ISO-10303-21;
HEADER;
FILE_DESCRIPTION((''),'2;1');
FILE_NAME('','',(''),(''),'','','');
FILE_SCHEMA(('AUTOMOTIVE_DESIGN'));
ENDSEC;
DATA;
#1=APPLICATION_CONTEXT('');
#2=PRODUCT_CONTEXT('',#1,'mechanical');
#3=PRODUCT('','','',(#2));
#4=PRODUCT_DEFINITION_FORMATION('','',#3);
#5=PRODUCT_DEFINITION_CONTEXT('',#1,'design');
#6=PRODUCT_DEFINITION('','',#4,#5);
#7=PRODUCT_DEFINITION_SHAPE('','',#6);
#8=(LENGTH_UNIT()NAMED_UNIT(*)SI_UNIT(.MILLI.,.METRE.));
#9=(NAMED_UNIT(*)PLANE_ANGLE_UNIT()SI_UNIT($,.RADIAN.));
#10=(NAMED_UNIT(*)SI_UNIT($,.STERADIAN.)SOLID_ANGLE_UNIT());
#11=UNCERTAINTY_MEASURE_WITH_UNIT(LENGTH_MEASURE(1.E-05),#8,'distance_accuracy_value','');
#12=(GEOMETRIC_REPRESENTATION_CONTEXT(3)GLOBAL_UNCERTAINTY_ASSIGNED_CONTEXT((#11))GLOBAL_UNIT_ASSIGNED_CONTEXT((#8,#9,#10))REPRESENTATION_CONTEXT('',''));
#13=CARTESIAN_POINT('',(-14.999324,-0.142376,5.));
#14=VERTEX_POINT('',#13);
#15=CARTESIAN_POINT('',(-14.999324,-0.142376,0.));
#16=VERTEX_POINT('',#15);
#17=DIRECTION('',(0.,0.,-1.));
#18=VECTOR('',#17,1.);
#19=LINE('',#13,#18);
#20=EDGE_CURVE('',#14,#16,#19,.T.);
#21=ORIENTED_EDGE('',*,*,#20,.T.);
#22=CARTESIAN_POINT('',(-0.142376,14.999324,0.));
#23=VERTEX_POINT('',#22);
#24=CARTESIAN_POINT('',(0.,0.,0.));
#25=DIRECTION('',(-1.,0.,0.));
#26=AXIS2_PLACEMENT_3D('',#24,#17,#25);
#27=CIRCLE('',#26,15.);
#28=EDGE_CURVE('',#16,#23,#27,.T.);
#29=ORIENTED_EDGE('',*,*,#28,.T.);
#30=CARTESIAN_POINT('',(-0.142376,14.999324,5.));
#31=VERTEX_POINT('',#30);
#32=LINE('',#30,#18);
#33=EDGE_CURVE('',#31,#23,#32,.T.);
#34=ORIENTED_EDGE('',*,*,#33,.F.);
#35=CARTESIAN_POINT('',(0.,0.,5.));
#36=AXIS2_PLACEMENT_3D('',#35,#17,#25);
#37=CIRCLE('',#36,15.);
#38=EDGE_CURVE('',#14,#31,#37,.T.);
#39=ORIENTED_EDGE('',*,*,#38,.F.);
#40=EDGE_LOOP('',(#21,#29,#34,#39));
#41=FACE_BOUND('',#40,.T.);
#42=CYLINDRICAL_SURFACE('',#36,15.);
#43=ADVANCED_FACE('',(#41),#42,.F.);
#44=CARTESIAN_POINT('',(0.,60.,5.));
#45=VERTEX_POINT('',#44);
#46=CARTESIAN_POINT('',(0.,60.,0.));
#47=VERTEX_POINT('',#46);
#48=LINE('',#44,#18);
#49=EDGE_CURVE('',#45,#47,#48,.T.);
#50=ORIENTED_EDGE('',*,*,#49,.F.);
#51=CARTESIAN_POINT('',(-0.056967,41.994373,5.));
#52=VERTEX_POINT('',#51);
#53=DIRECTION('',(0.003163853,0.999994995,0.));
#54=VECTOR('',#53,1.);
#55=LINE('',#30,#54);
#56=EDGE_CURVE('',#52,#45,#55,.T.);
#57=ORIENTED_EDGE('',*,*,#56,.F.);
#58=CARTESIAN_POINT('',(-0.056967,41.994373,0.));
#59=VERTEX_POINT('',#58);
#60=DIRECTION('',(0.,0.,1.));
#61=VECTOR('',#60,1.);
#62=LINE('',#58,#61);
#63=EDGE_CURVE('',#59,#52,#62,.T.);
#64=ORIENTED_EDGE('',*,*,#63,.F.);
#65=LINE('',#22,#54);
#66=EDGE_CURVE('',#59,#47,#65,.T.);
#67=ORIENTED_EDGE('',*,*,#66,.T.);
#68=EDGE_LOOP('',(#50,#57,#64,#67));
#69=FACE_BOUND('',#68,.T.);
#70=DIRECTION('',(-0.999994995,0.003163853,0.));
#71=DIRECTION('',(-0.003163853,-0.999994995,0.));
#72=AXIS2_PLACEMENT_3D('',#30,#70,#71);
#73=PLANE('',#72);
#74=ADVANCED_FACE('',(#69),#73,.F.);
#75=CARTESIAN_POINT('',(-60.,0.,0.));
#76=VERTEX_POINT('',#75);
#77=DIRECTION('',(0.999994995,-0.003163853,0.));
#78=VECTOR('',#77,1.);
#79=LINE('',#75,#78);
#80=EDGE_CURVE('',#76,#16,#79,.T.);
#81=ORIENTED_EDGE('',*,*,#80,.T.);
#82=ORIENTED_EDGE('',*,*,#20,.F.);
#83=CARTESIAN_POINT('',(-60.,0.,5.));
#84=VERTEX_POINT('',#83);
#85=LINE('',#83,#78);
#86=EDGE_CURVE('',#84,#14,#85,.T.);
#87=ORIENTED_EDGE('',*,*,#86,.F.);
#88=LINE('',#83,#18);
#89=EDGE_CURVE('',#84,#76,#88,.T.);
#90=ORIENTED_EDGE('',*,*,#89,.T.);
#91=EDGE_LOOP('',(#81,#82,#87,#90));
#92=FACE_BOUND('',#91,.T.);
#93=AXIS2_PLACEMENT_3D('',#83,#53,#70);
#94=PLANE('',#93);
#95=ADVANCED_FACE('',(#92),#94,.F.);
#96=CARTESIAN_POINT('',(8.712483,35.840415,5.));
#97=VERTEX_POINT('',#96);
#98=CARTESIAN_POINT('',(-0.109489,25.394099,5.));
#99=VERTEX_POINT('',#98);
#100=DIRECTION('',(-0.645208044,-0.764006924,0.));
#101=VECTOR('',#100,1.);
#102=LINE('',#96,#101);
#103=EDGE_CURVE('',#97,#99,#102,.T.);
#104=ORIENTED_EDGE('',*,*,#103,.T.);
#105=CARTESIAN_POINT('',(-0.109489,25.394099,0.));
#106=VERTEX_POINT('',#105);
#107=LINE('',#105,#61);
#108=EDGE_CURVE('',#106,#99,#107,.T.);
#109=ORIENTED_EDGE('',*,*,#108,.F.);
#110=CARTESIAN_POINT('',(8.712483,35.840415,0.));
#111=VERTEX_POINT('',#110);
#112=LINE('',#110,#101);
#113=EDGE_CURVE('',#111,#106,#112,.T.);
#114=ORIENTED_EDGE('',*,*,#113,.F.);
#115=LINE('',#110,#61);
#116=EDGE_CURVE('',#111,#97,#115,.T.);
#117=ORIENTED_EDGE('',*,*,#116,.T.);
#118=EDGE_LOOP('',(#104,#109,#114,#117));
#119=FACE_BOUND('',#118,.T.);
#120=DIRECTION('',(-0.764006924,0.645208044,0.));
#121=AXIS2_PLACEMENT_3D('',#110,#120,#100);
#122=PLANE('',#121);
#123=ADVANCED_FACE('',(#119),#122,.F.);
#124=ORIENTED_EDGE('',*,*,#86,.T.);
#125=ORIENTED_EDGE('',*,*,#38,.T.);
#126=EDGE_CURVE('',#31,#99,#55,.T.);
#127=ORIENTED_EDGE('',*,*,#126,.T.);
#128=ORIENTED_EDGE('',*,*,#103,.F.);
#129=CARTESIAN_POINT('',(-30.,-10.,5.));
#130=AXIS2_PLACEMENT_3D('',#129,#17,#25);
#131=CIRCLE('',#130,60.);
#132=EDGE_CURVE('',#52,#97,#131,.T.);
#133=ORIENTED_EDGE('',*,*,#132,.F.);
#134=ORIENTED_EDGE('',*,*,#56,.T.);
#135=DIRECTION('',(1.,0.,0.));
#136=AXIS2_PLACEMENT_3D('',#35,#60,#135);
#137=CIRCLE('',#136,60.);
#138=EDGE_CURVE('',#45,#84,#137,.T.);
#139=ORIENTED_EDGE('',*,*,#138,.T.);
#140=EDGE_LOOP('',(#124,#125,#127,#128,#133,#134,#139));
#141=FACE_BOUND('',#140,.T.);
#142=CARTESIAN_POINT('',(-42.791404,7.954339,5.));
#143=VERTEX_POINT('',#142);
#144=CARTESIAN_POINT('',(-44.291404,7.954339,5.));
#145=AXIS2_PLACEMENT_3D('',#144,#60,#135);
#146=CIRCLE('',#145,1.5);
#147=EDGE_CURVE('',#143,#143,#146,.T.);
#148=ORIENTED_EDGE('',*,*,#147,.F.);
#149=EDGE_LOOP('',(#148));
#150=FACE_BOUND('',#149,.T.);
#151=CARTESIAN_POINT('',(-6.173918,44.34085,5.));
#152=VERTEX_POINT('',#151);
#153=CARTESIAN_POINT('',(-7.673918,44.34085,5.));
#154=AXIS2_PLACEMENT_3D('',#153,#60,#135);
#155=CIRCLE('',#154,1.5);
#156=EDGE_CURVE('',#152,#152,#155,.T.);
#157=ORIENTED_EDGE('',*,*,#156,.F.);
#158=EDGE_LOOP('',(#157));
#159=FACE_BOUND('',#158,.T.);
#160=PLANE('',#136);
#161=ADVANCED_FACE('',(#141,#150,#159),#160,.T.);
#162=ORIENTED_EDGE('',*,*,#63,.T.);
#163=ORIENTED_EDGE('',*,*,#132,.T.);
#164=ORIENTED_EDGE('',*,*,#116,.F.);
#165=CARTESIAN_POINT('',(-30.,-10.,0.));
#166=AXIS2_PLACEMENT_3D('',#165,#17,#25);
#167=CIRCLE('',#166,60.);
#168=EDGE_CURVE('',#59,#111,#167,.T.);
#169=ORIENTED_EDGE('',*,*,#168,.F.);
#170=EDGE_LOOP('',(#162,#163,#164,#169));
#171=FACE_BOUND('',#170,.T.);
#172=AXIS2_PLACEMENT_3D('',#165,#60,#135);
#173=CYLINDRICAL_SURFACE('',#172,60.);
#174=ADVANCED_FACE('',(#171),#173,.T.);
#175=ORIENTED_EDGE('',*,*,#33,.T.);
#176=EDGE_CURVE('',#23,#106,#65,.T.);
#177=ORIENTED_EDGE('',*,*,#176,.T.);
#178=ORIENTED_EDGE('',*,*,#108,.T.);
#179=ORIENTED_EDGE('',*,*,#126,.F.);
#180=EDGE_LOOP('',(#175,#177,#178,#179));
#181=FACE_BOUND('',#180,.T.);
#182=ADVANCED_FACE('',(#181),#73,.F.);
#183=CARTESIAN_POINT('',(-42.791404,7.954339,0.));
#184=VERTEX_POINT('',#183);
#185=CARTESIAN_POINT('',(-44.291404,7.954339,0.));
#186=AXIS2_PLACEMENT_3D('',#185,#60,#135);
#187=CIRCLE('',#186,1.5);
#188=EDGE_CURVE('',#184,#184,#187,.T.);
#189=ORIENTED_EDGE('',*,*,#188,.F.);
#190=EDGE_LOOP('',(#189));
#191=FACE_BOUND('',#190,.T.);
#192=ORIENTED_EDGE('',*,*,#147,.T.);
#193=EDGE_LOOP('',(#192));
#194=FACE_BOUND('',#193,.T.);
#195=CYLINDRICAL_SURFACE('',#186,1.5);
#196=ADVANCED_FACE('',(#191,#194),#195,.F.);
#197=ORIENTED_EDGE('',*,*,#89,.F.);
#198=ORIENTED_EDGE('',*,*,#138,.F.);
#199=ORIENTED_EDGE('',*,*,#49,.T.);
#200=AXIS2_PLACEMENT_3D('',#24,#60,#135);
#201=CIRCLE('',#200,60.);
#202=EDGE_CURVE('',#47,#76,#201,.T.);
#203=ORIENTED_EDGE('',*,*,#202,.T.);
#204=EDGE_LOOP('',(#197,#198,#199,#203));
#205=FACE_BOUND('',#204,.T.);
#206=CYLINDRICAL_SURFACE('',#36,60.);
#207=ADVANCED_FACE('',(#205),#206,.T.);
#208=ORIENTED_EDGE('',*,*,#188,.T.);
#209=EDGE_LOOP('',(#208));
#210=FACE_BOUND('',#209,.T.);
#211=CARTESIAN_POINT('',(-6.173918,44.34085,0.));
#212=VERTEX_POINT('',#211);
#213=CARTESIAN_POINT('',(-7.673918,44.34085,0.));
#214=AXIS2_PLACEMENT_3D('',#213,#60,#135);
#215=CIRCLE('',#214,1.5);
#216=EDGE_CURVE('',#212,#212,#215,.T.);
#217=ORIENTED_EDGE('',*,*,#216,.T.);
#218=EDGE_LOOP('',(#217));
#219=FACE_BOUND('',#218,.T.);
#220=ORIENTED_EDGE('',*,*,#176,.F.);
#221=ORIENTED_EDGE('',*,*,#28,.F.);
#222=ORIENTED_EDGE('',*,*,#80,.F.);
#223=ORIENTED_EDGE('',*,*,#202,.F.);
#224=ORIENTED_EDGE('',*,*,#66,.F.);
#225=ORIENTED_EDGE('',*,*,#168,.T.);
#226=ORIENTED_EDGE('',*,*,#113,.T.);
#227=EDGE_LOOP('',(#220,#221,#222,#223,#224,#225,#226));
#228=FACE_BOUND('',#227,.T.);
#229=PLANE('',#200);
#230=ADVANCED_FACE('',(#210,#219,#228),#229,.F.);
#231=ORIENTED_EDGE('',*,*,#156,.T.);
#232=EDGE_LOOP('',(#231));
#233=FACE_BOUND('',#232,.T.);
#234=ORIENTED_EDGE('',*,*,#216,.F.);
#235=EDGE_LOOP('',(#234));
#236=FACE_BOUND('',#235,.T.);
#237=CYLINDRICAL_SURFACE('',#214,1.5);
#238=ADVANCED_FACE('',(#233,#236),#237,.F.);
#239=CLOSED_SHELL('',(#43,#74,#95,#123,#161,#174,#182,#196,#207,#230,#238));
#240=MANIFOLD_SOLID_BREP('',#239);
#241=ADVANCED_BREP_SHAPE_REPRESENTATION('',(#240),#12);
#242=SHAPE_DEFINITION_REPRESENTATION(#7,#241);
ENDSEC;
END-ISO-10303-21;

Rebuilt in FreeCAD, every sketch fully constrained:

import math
import FreeCAD as App
import Part
import Sketcher
from FreeCAD import Vector

doc = App.newDocument("Part")
body = doc.addObject("PartDesign::Body", "Body")

sketch1 = doc.addObject("Sketcher::SketchObject", "Sketch")
body.addObject(sketch1)
sketch1.AttachmentSupport = (doc.XY_Plane, [""])
sketch1.MapMode = "FlatFace"
sketch1.addGeometry([
    Part.LineSegment(Vector(-60, 0, 0), Vector(-14.999324, -0.142376, 0)),
    Part.ArcOfCircle(Part.Circle(Vector(0, 0, 0), Vector(0, 0, 1), 15), math.radians(90.543845), math.radians(180.543845)),
    Part.LineSegment(Vector(-0.142376, 14.999324, 0), Vector(0, 60, 0)),
    Part.ArcOfCircle(Part.Circle(Vector(0, 0, 0), Vector(0, 0, 1), 60), math.radians(90), math.radians(180)),
], False)
sketch1.addConstraint([
    Sketcher.Constraint("Coincident", 0, 2, 1, 2),
    Sketcher.Constraint("Coincident", 1, 1, 2, 1),
    Sketcher.Constraint("Coincident", 2, 2, 3, 1),
    Sketcher.Constraint("Coincident", 3, 2, 0, 1),
    Sketcher.Constraint("Coincident", 1, 3, -1, 1),
    Sketcher.Constraint("Coincident", 3, 3, -1, 1),
    Sketcher.Constraint("PointOnObject", 2, 2, -2),
    Sketcher.Constraint("PointOnObject", 3, 2, -1),
    Sketcher.Constraint("Perpendicular", 0, 2),
    Sketcher.Constraint("Radius", 1, 15.0),
    Sketcher.Constraint("Radius", 3, 60.0),
    Sketcher.Constraint("Distance", 0, 45.000901),
])
pad1 = doc.addObject("PartDesign::Pad", "Pad")
body.addObject(pad1)
pad1.Profile = sketch1
pad1.Length = 5

sketch2 = doc.addObject("Sketcher::SketchObject", "Sketch001")
body.addObject(sketch2)
sketch2.AttachmentSupport = (doc.XY_Plane, [""])
sketch2.MapMode = "FlatFace"
sketch2.AttachmentOffset = App.Placement(Vector(0, 0, 5), App.Rotation())
sketch2.addGeometry([
    Part.Circle(Vector(-7.673918, 44.34085, 0), Vector(0, 0, 1), 1.5),
    Part.Circle(Vector(-44.291404, 7.954339, 0), Vector(0, 0, 1), 1.5),
], False)
sketch2.addConstraint([
    Sketcher.Constraint("Equal", 0, 1),
    Sketcher.Constraint("Diameter", 0, 3.0),
    Sketcher.Constraint("DistanceX", 0, 3, -1, 1, 7.673918),
    Sketcher.Constraint("DistanceY", -1, 1, 0, 3, 44.34085),
    Sketcher.Constraint("DistanceY", -1, 1, 1, 3, 7.954339),
    Sketcher.Constraint("DistanceX", 1, 3, -1, 1, 44.291404),
])
pocket1 = doc.addObject("PartDesign::Pocket", "Pocket")
body.addObject(pocket1)
pocket1.Profile = sketch2
pocket1.Length = 5

sketch3 = doc.addObject("Sketcher::SketchObject", "Sketch002")
body.addObject(sketch3)
sketch3.AttachmentSupport = (doc.XY_Plane, [""])
sketch3.MapMode = "FlatFace"
sketch3.AttachmentOffset = App.Placement(Vector(0, 0, 5), App.Rotation())
sketch3.addGeometry([
    Part.LineSegment(Vector(-0.109489, 25.394099, 0), Vector(8.712483, 35.840415, 0)),
    Part.ArcOfCircle(Part.Circle(Vector(-30, -10, 0), Vector(0, 0, 1), 60), math.radians(49.818724), math.radians(60.062796)),
    Part.LineSegment(Vector(-0.056967, 41.994373, 0), Vector(-0.109489, 25.394099, 0)),
], False)
sketch3.addConstraint([
    Sketcher.Constraint("Coincident", 0, 2, 1, 1),
    Sketcher.Constraint("Coincident", 1, 2, 2, 1),
    Sketcher.Constraint("Coincident", 2, 2, 0, 1),
    Sketcher.Constraint("Radius", 1, 60.0),
    Sketcher.Constraint("DistanceX", 1, 3, -1, 1, 30.0),
    Sketcher.Constraint("DistanceY", 1, 3, -1, 1, 10.0),
    Sketcher.Constraint("DistanceY", -1, 1, 2, 2, 25.394099),
    Sketcher.Constraint("DistanceX", 2, 2, -1, 1, 0.109489),
    Sketcher.Constraint("DistanceX", 1, 2, 0, 2, 8.76945),
    Sketcher.Constraint("DistanceX", 2, 2, 0, 2, 8.821971),
])
pad2 = doc.addObject("PartDesign::Pad", "Pad001")
body.addObject(pad2)
pad2.Profile = sketch3
pad2.Length = 5
pad2.Reversed = True

doc.recompute()
